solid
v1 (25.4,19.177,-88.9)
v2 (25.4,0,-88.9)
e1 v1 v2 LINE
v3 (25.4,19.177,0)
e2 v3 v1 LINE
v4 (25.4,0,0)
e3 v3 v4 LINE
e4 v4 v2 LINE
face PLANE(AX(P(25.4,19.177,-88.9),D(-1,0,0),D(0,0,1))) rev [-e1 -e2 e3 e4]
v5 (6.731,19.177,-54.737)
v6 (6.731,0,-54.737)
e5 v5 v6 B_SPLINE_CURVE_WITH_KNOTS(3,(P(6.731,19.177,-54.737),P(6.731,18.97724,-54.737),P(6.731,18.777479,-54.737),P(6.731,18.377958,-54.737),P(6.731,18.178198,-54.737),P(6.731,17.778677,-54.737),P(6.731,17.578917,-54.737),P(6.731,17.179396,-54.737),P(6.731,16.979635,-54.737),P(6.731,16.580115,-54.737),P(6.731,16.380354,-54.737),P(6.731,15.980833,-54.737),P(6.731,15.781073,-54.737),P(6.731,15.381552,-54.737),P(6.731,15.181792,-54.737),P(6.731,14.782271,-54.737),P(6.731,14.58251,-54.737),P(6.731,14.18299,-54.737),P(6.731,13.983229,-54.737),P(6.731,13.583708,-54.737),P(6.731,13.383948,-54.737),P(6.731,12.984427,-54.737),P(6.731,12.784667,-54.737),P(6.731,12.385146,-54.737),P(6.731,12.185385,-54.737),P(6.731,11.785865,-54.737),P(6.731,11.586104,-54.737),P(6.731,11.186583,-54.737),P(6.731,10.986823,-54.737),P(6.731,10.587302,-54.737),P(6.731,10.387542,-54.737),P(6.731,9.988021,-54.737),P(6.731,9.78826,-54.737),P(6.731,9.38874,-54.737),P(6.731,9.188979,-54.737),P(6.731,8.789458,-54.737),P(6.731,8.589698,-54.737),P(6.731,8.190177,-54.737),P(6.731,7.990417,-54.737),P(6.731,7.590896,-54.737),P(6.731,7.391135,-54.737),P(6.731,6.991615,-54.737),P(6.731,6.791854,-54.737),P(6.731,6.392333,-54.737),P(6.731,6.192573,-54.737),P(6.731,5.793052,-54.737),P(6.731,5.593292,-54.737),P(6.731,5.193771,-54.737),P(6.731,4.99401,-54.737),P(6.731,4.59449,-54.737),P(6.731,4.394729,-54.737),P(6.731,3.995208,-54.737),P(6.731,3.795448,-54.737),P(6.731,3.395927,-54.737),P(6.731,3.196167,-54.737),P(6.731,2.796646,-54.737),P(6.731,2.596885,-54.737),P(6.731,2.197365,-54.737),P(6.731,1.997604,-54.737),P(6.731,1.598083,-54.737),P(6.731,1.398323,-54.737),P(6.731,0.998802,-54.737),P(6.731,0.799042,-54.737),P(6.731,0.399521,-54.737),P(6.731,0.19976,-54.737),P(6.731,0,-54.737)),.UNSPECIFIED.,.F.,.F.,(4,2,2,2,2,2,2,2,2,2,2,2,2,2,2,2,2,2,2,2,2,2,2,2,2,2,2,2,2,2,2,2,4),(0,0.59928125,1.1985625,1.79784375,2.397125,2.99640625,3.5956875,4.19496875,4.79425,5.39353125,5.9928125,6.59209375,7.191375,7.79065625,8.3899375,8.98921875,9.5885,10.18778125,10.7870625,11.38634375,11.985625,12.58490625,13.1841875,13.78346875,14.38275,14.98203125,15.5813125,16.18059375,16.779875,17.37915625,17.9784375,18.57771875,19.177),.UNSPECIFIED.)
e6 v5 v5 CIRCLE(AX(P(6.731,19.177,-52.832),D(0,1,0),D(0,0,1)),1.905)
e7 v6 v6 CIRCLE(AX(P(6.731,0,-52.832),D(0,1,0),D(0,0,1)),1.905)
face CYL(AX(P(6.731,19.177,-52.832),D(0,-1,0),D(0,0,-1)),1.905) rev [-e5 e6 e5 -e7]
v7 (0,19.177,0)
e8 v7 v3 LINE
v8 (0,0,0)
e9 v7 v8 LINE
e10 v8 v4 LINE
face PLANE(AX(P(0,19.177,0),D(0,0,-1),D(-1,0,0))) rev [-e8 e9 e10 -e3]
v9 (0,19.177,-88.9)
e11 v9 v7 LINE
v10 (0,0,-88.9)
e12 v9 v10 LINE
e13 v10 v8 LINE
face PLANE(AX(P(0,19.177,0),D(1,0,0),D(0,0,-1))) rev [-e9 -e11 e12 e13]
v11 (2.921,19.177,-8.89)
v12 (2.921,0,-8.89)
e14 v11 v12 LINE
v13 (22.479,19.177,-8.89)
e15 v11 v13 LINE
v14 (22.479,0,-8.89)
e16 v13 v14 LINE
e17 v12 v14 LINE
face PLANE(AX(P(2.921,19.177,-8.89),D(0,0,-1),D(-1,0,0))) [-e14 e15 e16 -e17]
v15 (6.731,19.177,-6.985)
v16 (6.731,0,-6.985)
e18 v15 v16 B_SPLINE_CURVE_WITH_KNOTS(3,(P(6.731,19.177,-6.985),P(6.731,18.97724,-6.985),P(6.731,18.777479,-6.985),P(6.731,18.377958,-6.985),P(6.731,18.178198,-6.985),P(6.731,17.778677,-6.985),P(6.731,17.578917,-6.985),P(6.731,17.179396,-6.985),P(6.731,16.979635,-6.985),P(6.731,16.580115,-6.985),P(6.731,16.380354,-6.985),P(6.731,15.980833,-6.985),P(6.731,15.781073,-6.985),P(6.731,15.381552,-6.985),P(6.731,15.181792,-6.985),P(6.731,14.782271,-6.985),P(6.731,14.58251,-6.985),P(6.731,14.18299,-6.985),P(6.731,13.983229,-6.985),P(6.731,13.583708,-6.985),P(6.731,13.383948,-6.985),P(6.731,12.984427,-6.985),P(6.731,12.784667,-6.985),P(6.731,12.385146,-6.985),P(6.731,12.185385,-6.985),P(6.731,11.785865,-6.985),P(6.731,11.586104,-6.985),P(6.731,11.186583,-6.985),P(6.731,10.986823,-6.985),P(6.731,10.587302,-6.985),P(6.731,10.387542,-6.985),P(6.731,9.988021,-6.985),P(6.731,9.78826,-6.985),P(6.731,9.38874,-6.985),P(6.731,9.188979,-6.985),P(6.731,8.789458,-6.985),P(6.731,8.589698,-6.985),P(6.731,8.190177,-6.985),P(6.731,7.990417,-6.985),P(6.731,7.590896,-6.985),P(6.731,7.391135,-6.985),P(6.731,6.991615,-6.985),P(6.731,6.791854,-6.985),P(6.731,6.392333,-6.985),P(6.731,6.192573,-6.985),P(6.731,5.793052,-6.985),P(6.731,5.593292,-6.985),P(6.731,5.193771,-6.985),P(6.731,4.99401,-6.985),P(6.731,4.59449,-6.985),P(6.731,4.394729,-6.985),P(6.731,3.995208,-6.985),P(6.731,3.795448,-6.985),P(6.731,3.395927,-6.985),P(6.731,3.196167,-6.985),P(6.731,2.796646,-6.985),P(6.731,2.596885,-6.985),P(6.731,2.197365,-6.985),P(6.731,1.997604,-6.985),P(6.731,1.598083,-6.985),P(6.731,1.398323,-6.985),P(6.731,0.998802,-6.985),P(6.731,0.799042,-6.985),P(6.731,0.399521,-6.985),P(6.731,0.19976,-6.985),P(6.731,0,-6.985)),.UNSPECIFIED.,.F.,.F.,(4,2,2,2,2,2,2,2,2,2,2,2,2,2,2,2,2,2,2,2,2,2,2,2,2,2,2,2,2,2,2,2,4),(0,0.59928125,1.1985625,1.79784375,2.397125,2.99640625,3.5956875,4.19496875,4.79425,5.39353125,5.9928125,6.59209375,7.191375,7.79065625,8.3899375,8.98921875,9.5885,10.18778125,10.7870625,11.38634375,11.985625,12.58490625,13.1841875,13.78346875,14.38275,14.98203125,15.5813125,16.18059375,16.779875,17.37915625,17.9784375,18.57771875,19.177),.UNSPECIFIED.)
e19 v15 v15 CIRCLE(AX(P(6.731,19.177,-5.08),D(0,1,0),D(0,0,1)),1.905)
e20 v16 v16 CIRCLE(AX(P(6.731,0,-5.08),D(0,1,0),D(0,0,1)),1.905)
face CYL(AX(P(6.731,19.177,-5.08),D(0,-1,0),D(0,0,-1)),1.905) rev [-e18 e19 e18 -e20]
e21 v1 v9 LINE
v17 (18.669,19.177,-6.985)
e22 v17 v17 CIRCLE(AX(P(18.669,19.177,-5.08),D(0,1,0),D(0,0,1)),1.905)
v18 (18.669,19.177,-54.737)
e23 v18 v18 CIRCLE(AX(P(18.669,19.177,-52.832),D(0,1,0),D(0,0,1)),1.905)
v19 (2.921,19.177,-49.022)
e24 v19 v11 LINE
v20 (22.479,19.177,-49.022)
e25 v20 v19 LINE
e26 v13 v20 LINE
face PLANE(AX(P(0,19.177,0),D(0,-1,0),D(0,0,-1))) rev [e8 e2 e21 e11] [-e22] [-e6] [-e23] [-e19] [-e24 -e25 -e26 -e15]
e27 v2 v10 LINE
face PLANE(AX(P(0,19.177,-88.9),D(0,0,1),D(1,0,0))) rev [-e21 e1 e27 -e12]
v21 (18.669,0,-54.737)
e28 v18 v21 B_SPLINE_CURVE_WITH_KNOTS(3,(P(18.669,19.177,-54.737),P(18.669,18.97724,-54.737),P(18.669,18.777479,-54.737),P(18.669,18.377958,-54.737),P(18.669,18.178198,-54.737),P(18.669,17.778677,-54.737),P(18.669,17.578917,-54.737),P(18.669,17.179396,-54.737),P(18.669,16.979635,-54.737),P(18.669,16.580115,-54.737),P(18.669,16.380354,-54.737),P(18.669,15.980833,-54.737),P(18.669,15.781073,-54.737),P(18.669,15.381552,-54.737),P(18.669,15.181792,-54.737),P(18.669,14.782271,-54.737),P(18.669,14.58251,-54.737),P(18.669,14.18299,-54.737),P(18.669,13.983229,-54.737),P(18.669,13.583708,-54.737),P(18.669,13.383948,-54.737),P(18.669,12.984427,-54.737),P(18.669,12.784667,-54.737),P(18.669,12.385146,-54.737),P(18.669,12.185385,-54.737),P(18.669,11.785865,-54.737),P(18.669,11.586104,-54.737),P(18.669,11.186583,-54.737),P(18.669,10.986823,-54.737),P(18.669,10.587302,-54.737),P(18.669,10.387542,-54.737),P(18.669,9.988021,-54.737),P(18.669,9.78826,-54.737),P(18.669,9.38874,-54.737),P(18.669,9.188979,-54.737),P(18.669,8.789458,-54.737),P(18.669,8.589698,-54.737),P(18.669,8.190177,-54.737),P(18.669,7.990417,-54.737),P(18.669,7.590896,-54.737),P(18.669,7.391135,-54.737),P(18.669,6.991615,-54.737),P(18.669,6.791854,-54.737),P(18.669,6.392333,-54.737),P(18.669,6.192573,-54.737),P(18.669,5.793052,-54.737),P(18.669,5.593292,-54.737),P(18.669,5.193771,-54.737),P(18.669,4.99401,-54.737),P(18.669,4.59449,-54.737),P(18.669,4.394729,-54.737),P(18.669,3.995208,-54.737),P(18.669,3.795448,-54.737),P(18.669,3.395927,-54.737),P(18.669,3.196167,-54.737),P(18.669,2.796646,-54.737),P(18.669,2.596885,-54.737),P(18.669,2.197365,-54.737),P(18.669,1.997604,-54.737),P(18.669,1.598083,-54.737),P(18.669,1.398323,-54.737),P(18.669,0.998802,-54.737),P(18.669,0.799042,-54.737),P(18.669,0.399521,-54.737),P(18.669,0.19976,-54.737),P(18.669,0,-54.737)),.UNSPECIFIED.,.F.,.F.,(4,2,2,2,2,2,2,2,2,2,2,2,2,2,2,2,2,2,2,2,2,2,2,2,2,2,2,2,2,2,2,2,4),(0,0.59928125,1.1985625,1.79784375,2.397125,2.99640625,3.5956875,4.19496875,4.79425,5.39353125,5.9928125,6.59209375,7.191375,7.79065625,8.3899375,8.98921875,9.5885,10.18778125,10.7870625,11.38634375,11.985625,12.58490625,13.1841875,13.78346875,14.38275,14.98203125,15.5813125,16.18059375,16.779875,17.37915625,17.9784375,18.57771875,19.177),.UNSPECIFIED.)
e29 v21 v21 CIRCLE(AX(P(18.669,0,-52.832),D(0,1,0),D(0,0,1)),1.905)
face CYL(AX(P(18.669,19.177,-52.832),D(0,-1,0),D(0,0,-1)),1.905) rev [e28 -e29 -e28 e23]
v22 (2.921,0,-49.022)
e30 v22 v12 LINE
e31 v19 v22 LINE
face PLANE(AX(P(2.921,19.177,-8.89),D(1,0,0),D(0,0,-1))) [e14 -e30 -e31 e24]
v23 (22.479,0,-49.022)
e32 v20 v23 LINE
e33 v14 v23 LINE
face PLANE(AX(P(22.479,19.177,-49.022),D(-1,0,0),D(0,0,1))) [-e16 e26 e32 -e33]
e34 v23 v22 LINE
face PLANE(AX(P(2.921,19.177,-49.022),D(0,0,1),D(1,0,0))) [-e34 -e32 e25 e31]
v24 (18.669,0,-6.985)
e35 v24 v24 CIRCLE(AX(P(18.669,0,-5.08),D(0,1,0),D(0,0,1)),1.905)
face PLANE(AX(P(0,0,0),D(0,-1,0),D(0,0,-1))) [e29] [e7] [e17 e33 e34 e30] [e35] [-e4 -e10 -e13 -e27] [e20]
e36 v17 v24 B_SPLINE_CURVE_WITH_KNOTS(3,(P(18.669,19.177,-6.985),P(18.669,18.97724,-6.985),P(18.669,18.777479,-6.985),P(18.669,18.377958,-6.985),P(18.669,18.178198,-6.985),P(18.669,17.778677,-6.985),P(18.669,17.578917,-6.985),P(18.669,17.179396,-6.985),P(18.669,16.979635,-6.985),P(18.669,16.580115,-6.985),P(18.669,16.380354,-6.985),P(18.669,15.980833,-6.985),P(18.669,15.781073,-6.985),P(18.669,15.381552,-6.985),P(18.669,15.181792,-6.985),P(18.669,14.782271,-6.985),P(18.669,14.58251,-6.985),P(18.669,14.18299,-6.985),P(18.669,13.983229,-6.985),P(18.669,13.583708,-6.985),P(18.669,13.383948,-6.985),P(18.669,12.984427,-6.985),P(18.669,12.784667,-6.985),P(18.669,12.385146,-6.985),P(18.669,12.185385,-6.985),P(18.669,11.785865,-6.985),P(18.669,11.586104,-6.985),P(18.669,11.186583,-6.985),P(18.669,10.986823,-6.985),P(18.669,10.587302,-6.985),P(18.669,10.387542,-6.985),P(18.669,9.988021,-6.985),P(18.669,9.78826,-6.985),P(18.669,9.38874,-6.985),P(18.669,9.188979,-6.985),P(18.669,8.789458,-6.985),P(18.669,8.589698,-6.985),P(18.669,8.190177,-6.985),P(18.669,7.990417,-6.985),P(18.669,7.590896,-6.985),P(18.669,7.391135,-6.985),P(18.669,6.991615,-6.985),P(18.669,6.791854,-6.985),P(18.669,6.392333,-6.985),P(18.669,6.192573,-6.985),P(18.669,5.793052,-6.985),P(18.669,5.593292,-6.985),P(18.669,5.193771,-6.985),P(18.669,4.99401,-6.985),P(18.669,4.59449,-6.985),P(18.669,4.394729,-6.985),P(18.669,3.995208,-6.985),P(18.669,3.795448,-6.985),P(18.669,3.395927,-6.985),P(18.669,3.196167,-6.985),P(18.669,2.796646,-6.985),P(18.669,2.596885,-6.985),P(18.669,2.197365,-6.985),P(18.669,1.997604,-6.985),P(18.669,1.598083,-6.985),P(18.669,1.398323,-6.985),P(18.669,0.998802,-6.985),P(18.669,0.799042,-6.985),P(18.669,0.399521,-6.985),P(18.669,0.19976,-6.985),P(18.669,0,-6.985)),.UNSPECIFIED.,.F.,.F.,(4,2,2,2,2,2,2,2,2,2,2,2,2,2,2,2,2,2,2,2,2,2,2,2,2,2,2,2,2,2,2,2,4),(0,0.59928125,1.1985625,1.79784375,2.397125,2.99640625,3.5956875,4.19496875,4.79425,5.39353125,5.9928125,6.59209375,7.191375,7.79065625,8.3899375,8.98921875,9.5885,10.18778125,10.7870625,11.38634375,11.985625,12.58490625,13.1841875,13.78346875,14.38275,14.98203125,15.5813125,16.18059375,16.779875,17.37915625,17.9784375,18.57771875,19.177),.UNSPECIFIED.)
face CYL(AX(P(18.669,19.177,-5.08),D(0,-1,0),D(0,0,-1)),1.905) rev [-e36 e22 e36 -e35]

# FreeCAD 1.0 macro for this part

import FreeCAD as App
import Part
import Sketcher
from FreeCAD import Vector
Q = App.Units.Quantity


def add_polygon(sketch, points):
    """Adds a closed chain of lines whose ends are joined by coincident constraints."""
    first, n = sketch.GeometryCount, len(points)
    for a, b in zip(points, points[1:] + points[:1]):
        sketch.addGeometry(Part.LineSegment(App.Vector(*a, 0), App.Vector(*b, 0)), False)
    for i in range(n):
        sketch.addConstraint(Sketcher.Constraint("Coincident", first + i, 2, first + (i + 1) % n, 1))

doc = App.newDocument("Part")
body = doc.addObject("PartDesign::Body", "Body")

sketch1 = body.newObject("Sketcher::SketchObject", "Sketch")
sketch1.AttachmentSupport = (doc.getObject("XZ_Plane"), [""])
sketch1.MapMode = "FlatFace"
add_polygon(sketch1, [(0, -88.9), (0, 0), (25.4, 0), (25.4, -88.9)])
sketch1.addGeometry(Part.Circle(Vector(6.7, -5.1, 0), Vector(0, 0, 1), 1.9), False)
sketch1.addGeometry(Part.Circle(Vector(18.7, -5.1, 0), Vector(0, 0, 1), 1.9), False)
sketch1.addGeometry(Part.Circle(Vector(6.7, -52.8, 0), Vector(0, 0, 1), 1.9), False)
add_polygon(sketch1, [(22.5, -8.9), (2.9, -8.9), (2.9, -49), (22.5, -49)])
sketch1.addGeometry(Part.Circle(Vector(18.7, -52.8, 0), Vector(0, 0, 1), 1.9), False)
sketch1.addConstraint([
    Sketcher.Constraint("Vertical", 0),
    Sketcher.Constraint("Horizontal", 1),
    Sketcher.Constraint("Vertical", 2),
    Sketcher.Constraint("Horizontal", 3),
    Sketcher.Constraint("Horizontal", 7),
    Sketcher.Constraint("Vertical", 8),
    Sketcher.Constraint("Horizontal", 9),
    Sketcher.Constraint("Vertical", 10),
    Sketcher.Constraint("Coincident", 0, 2, -1, 1),
    Sketcher.Constraint("Equal", 4, 5),
    Sketcher.Constraint("Equal", 5, 6),
    Sketcher.Constraint("Equal", 6, 11),
    Sketcher.Constraint("Horizontal", 4, 3, 5, 3),
    Sketcher.Constraint("Horizontal", 6, 3, 11, 3),
    Sketcher.Constraint("Vertical", 4, 3, 6, 3),
    Sketcher.Constraint("Vertical", 5, 3, 11, 3),
    Sketcher.Constraint("Diameter", 4, Q("0.15 in")),
    Sketcher.Constraint("DistanceX", 1, 1, 1, 2, Q("1 in")),
    Sketcher.Constraint("DistanceY", 0, 1, 0, 2, Q("3.5 in")),
    Sketcher.Constraint("DistanceX", 7, 2, 7, 1, Q("0.77 in")),
    Sketcher.Constraint("DistanceY", 8, 2, 8, 1, Q("1.58 in")),
    Sketcher.Constraint("DistanceY", 4, 3, -1, 1, Q("0.2 in")),
    Sketcher.Constraint("DistanceY", 6, 3, -1, 1, Q("2.08 in")),
    Sketcher.Constraint("DistanceY", 7, 2, -1, 1, Q("0.35 in")),
    Sketcher.Constraint("DistanceX", 4, 3, 5, 3, Q("0.47 in")),
    Sketcher.Constraint("DistanceX", 7, 2, 4, 3, Q("0.15 in")),
    Sketcher.Constraint("DistanceX", -1, 1, 4, 3, Q("0.265 in")),
])
pad1 = body.newObject("PartDesign::Pad", "Pad")
pad1.Profile = sketch1
pad1.Length = Q("0.755 in")
pad1.Reversed = True

doc.recompute()
